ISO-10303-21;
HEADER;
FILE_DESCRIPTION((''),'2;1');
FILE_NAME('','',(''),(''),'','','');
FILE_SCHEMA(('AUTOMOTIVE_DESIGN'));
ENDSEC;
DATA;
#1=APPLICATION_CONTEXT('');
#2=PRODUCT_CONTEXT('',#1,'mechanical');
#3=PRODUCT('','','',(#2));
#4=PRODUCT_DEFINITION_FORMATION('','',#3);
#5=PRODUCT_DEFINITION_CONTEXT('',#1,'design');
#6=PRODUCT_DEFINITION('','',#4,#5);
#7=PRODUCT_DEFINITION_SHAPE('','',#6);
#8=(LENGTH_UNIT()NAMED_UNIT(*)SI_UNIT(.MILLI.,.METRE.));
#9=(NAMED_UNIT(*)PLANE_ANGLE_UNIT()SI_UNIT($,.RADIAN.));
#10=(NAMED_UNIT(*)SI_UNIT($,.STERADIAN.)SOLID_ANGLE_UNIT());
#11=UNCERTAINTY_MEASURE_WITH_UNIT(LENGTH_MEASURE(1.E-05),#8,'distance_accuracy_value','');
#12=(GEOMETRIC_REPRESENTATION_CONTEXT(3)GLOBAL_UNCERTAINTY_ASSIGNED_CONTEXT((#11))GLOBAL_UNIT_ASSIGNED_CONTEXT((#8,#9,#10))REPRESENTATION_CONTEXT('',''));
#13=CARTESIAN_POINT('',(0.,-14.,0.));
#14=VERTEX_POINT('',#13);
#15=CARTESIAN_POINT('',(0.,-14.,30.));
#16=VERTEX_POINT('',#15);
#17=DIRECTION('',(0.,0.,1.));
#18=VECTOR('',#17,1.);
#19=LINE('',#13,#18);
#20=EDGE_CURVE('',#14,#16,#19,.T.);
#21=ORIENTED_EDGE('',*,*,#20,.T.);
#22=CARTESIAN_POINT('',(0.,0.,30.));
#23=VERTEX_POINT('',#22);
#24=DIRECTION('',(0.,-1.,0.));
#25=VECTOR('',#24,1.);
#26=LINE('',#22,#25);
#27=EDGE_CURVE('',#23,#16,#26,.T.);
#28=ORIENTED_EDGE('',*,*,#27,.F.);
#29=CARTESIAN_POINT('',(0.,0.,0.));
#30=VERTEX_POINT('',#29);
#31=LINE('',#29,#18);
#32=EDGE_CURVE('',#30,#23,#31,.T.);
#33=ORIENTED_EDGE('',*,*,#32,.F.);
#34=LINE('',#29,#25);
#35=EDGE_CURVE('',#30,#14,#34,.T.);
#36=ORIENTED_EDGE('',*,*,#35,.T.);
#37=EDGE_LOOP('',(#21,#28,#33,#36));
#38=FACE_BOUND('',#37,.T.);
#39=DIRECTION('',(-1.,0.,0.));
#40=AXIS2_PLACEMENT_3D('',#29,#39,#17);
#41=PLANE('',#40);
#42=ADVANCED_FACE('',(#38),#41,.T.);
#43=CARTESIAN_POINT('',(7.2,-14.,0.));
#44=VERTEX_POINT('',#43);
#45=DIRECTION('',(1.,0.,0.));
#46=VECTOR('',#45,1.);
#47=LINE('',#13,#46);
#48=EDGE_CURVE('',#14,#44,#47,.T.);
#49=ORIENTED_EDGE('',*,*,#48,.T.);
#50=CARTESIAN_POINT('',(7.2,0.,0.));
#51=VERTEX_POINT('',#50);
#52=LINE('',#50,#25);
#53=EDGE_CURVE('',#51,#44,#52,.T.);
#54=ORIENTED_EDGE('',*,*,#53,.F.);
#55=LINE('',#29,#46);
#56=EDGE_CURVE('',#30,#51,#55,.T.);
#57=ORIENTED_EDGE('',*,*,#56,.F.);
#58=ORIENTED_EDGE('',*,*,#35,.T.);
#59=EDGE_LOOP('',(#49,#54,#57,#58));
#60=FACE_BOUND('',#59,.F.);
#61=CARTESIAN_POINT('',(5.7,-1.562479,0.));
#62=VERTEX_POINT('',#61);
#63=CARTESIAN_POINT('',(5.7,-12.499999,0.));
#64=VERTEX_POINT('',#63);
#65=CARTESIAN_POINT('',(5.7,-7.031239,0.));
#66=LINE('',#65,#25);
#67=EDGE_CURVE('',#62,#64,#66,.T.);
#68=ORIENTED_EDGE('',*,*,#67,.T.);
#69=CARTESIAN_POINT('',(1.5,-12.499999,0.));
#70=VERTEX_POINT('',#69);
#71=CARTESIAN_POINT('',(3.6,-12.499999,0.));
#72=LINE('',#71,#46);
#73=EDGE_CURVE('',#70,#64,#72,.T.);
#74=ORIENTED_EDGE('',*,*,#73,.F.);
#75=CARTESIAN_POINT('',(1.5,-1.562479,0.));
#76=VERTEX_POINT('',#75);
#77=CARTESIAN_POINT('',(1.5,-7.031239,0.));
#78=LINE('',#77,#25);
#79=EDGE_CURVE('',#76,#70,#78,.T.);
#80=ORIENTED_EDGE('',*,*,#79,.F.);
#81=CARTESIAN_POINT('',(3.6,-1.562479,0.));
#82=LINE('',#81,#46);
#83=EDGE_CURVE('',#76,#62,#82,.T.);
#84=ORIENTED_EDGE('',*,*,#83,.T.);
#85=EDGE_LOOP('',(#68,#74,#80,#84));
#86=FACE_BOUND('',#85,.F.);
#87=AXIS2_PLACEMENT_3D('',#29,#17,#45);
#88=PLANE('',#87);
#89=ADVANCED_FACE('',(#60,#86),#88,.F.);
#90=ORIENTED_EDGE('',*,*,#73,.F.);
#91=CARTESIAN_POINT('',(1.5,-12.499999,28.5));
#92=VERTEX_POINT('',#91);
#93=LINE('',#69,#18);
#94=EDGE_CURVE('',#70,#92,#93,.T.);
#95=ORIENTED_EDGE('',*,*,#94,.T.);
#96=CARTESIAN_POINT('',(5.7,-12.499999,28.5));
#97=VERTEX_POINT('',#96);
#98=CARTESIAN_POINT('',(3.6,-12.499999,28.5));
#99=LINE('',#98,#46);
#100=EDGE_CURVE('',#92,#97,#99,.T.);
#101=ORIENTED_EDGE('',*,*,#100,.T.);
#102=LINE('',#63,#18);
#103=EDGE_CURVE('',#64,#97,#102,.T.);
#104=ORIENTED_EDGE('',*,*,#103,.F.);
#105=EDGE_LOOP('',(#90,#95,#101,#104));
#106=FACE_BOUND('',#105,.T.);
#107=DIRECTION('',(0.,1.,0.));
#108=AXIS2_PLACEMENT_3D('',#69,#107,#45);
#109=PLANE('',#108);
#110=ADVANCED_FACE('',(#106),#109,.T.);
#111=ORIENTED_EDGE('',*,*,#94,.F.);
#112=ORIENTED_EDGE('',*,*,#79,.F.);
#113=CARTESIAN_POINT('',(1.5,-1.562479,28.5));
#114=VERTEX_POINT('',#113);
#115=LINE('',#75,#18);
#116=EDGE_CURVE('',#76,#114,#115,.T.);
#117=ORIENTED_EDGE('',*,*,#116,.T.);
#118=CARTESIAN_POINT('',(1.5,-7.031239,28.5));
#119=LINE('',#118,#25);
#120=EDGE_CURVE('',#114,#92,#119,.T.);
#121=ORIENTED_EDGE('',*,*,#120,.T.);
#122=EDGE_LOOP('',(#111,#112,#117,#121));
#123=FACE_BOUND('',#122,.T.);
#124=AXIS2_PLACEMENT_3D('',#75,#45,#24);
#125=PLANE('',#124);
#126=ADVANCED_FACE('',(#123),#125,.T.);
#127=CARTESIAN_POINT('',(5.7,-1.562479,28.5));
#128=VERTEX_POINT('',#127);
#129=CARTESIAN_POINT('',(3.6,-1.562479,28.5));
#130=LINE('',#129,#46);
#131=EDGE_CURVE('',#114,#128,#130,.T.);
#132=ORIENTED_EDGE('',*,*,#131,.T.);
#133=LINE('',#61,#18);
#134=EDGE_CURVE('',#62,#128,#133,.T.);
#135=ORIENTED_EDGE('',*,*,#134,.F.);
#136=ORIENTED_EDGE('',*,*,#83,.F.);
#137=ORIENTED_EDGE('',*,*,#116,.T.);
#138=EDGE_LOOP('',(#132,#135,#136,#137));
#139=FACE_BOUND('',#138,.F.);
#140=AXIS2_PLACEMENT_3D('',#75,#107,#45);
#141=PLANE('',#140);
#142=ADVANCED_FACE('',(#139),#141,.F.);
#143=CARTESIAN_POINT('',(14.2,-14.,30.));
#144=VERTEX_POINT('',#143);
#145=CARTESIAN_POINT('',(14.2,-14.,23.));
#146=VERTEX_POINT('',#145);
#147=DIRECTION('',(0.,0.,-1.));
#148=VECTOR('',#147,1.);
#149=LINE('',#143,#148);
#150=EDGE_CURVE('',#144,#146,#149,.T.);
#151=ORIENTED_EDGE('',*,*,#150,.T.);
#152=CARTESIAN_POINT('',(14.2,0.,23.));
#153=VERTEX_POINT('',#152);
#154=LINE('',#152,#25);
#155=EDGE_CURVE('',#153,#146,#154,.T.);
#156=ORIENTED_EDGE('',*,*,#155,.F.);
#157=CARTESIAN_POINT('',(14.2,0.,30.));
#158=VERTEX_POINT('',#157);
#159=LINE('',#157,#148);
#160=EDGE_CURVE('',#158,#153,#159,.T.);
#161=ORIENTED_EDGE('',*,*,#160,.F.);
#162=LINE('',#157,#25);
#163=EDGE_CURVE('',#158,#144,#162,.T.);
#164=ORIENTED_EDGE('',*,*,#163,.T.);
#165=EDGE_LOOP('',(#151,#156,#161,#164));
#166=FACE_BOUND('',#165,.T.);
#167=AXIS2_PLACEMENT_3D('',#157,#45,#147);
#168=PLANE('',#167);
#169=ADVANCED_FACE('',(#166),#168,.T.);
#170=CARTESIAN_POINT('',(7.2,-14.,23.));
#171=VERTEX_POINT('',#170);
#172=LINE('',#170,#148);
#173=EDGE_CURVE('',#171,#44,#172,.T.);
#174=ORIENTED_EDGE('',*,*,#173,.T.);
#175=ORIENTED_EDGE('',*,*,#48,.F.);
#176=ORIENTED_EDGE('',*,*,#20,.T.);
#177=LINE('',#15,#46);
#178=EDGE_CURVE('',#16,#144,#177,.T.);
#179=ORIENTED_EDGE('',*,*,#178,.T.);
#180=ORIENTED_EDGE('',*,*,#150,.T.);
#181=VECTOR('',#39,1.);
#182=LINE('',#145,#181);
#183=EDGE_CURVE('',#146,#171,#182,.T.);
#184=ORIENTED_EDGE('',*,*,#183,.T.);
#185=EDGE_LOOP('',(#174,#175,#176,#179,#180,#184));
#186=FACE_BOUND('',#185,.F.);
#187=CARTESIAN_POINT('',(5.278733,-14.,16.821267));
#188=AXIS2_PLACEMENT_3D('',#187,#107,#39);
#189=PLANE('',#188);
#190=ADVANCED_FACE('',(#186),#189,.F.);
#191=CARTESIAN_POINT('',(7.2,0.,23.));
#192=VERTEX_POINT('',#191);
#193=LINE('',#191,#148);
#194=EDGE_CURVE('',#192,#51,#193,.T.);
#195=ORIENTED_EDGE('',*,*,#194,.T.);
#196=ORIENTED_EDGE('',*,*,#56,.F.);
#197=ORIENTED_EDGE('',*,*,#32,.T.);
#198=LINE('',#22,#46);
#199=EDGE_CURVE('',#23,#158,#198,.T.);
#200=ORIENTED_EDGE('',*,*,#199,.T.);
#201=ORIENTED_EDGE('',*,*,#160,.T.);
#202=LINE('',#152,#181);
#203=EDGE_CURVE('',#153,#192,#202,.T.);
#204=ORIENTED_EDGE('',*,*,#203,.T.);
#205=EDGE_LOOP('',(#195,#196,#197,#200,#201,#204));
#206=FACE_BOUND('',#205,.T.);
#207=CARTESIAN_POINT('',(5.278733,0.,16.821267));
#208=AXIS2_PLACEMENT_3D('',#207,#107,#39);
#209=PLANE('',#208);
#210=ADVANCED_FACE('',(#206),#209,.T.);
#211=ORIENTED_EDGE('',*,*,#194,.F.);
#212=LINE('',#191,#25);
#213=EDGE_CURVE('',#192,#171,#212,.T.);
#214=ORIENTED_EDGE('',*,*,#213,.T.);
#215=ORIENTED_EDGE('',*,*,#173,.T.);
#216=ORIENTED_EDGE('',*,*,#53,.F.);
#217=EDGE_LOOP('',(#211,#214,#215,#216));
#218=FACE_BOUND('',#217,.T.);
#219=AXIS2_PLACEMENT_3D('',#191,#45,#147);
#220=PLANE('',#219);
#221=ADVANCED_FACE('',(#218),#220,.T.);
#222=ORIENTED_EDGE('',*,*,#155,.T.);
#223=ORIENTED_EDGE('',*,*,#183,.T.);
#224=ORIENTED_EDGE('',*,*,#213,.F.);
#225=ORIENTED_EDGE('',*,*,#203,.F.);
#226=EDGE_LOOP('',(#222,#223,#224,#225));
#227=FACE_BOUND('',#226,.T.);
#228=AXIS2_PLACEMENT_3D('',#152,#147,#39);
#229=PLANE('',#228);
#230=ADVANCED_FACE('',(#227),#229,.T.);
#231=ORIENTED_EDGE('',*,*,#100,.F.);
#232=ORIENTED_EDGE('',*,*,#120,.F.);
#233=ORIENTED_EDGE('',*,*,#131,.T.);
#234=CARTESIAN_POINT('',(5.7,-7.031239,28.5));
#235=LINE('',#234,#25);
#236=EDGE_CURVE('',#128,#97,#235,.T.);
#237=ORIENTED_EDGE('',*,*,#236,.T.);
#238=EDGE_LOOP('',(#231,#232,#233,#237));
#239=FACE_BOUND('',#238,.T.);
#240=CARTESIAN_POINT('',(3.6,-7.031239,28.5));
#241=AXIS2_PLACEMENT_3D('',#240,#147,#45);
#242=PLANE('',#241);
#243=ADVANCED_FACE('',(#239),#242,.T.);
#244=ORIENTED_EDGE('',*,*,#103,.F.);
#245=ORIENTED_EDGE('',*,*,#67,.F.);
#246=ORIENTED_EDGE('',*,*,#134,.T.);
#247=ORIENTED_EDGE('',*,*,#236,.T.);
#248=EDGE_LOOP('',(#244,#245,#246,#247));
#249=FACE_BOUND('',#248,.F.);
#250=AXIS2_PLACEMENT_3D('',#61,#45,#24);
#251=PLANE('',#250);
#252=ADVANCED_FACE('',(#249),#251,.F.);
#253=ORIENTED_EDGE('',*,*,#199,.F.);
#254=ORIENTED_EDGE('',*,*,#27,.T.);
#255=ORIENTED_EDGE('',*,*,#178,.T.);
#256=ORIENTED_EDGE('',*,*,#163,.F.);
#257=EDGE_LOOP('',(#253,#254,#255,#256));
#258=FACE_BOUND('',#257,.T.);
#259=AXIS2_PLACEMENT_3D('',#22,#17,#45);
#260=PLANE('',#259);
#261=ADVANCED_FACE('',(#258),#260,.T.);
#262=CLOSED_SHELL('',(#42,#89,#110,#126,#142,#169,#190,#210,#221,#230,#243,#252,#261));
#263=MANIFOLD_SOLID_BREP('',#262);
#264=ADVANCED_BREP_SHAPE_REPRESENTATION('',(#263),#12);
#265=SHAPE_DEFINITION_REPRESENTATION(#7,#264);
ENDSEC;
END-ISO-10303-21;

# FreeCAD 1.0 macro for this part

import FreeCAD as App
import Part
import Sketcher
from FreeCAD import Vector


def add_polygon(sketch, points):
    """Adds a closed chain of lines whose ends are joined by coincident constraints."""
    first, n = sketch.GeometryCount, len(points)
    for a, b in zip(points, points[1:] + points[:1]):
        sketch.addGeometry(Part.LineSegment(App.Vector(*a, 0), App.Vector(*b, 0)), False)
    for i in range(n):
        sketch.addConstraint(Sketcher.Constraint("Coincident", first + i, 2, first + (i + 1) % n, 1))

doc = App.newDocument("Part")
params = doc.addObject("Spreadsheet::Sheet", "Params")
for row, (alias, value) in enumerate([
    ("sketch1_width", "7 mm"),
    ("sketch1_height", "30 mm"),
    ("sketch1_width2", "14.2 mm"),
    ("pad1_length", "14 mm"),
    ("sketch2_width", "4.2 mm"),
    ("pocket1_length", "28.5 mm"),
], start=1):
    params.set(f"A{row}", alias)
    params.set(f"B{row}", "=" + value)
    params.setAlias(f"B{row}", alias)

body = doc.addObject("PartDesign::Body", "Body")

# Sketch on XZ plane
sketch1 = body.newObject("Sketcher::SketchObject", "Sketch")
sketch1.AttachmentSupport = (doc.getObject("XZ_Plane"), [""])
sketch1.MapMode = "FlatFace"
add_polygon(sketch1, [(14.2, 30), (0, 30), (0, 0), (7.2, 0), (7.2, 23), (14.2, 23)])  # lines 0-5
sketch1.addConstraint([
    Sketcher.Constraint("Horizontal", 0),
    Sketcher.Constraint("Vertical", 1),
    Sketcher.Constraint("Horizontal", 2),
    Sketcher.Constraint("Vertical", 3),
    Sketcher.Constraint("Horizontal", 4),
    Sketcher.Constraint("Vertical", 5),
    Sketcher.Constraint("Coincident", 1, 2, -1, 1),
    Sketcher.Constraint("Equal", 4, 5),
    Sketcher.Constraint("DistanceX", 4, 1, 4, 2, 7.0),
    Sketcher.Constraint("DistanceY", 1, 2, 1, 1, 30.0),
    Sketcher.Constraint("DistanceX", 0, 2, 0, 1, 14.2),
])
sketch1.setExpression("Constraints[14]", "Params.sketch1_width")
sketch1.setExpression("Constraints[15]", "Params.sketch1_height")
sketch1.setExpression("Constraints[16]", "Params.sketch1_width2")
pad1 = body.newObject("PartDesign::Pad", "Pad")
pad1.Profile = sketch1
pad1.setExpression("Length", "Params.pad1_length")

# Sketch on XY plane
sketch2 = body.newObject("Sketcher::SketchObject", "Sketch001")
sketch2.AttachmentSupport = (doc.getObject("XY_Plane"), [""])
sketch2.MapMode = "FlatFace"
add_polygon(sketch2, [(1.5, -12.499999), (1.5, -1.562479), (5.7, -1.562479), (5.7, -12.499999)])  # lines 0-3
sketch2.addConstraint([
    Sketcher.Constraint("Vertical", 0),
    Sketcher.Constraint("Horizontal", 1),
    Sketcher.Constraint("Vertical", 2),
    Sketcher.Constraint("Horizontal", 3),
    Sketcher.Constraint("DistanceX", 1, 1, 1, 2, 4.2),
    Sketcher.Constraint("DistanceX", -1, 1, 0, 2, 1.5),
    Sketcher.Constraint("DistanceY", 2, 2, -1, 1, 12.499999),
    Sketcher.Constraint("DistanceY", 0, 1, 0, 2, 10.937521),
])
sketch2.setExpression("Constraints[8]", "Params.sketch2_width")
pocket1 = body.newObject("PartDesign::Pocket", "Pocket")
pocket1.Profile = sketch2
pocket1.setExpression("Length", "Params.pocket1_length")
pocket1.Reversed = True

doc.recompute()
